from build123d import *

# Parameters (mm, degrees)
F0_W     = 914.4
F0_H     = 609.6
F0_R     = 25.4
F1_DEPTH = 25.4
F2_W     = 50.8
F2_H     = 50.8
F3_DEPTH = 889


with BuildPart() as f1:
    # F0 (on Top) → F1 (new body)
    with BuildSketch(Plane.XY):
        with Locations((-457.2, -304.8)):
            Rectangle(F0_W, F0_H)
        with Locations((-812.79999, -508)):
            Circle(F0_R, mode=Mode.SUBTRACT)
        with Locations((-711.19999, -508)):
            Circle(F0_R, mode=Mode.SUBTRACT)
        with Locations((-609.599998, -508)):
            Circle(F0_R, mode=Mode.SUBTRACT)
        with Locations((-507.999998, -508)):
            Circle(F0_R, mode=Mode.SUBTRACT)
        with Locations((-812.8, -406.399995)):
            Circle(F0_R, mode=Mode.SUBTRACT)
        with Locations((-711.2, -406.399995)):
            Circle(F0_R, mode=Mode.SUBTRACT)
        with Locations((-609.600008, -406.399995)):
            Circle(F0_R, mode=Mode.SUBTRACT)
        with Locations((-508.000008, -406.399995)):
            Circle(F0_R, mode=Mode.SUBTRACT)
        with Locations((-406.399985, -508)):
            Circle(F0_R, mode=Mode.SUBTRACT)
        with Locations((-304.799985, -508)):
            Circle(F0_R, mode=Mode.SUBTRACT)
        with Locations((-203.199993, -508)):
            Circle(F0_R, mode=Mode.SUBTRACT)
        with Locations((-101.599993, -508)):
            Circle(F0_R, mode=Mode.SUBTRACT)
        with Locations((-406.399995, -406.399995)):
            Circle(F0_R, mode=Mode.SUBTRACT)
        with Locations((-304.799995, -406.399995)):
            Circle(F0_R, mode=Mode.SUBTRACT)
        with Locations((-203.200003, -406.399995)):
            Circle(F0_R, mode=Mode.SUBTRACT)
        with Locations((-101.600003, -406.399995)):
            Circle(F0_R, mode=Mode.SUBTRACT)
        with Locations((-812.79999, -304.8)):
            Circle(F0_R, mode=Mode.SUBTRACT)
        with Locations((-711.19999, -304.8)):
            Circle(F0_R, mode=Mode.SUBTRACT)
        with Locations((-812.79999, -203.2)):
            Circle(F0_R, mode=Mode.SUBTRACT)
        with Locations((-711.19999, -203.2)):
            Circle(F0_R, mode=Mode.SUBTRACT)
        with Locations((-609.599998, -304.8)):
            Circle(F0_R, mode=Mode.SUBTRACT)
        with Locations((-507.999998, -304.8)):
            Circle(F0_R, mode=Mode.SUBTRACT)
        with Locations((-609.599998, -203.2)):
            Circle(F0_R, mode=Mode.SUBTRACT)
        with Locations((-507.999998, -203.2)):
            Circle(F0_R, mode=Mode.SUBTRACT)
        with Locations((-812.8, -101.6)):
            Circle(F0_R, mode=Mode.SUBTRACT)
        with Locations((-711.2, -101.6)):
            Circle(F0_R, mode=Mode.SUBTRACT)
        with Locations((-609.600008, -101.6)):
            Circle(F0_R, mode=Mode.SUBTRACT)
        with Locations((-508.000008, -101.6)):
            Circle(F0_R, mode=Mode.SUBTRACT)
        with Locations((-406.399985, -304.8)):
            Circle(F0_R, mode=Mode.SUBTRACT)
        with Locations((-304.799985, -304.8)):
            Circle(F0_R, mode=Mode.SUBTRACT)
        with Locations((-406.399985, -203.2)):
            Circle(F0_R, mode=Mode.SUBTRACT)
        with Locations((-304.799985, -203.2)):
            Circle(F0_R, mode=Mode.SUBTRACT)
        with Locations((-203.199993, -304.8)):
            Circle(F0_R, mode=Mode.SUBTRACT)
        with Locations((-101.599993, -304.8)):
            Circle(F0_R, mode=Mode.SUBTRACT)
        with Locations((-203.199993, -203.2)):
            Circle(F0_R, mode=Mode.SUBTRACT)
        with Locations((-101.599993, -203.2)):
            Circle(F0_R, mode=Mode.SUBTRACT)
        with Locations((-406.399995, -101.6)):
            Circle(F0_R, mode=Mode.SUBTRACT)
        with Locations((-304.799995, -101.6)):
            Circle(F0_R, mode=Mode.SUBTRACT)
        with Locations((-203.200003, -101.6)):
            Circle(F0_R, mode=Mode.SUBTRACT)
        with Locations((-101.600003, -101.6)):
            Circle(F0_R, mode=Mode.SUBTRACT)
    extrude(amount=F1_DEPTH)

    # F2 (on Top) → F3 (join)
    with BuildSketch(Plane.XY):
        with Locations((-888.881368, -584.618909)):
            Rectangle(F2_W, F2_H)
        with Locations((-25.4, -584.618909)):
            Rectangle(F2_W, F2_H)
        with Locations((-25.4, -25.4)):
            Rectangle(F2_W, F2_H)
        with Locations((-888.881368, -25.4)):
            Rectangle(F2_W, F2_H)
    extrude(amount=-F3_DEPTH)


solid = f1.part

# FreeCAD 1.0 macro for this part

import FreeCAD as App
import Part
import Sketcher

V = App.Vector
Q = App.Units.Quantity

doc = App.newDocument("Part")
body = doc.addObject("PartDesign::Body", "Body")

sketch1 = body.newObject("Sketcher::SketchObject", "Sketch")
sketch1.AttachmentSupport = (doc.getObject("XY_Plane"), [""])
sketch1.MapMode = "FlatFace"
sketch1.addGeometry([
    Part.LineSegment(V(-914.4, 0, 0), V(-914.4, -609.6, 0)),
    Part.LineSegment(V(-914.4, -609.6, 0), V(0, -609.6, 0)),
    Part.LineSegment(V(0, -609.6, 0), V(0, 0, 0)),
    Part.LineSegment(V(0, 0, 0), V(-914.4, 0, 0)),
    Part.Circle(V(-812.79999, -508, 0), V(0, 0, 1), 25.4),
    Part.Circle(V(-711.19999, -508, 0), V(0, 0, 1), 25.4),
    Part.Circle(V(-609.599998, -508, 0), V(0, 0, 1), 25.4),
    Part.Circle(V(-507.999998, -508, 0), V(0, 0, 1), 25.4),
    Part.Circle(V(-812.8, -406.399995, 0), V(0, 0, 1), 25.4),
    Part.Circle(V(-711.2, -406.399995, 0), V(0, 0, 1), 25.4),
    Part.Circle(V(-812.79999, -304.8, 0), V(0, 0, 1), 25.4),
    Part.Circle(V(-711.19999, -304.8, 0), V(0, 0, 1), 25.4),
    Part.Circle(V(-609.600008, -406.399995, 0), V(0, 0, 1), 25.4),
    Part.Circle(V(-508.000008, -406.399995, 0), V(0, 0, 1), 25.4),
    Part.Circle(V(-609.599998, -304.8, 0), V(0, 0, 1), 25.4),
    Part.Circle(V(-507.999998, -304.8, 0), V(0, 0, 1), 25.4),
    Part.Circle(V(-406.399985, -508, 0), V(0, 0, 1), 25.4),
    Part.Circle(V(-304.799985, -508, 0), V(0, 0, 1), 25.4),
    Part.Circle(V(-203.199993, -508, 0), V(0, 0, 1), 25.4),
    Part.Circle(V(-101.599993, -508, 0), V(0, 0, 1), 25.4),
    Part.Circle(V(-406.399995, -406.399995, 0), V(0, 0, 1), 25.4),
    Part.Circle(V(-304.799995, -406.399995, 0), V(0, 0, 1), 25.4),
    Part.Circle(V(-406.399985, -304.8, 0), V(0, 0, 1), 25.4),
    Part.Circle(V(-304.799985, -304.8, 0), V(0, 0, 1), 25.4),
    Part.Circle(V(-203.200003, -406.399995, 0), V(0, 0, 1), 25.4),
    Part.Circle(V(-101.600003, -406.399995, 0), V(0, 0, 1), 25.4),
    Part.Circle(V(-203.199993, -304.8, 0), V(0, 0, 1), 25.4),
    Part.Circle(V(-101.599993, -304.8, 0), V(0, 0, 1), 25.4),
    Part.Circle(V(-812.79999, -203.2, 0), V(0, 0, 1), 25.4),
    Part.Circle(V(-711.19999, -203.2, 0), V(0, 0, 1), 25.4),
    Part.Circle(V(-609.599998, -203.2, 0), V(0, 0, 1), 25.4),
    Part.Circle(V(-507.999998, -203.2, 0), V(0, 0, 1), 25.4),
    Part.Circle(V(-812.8, -101.6, 0), V(0, 0, 1), 25.4),
    Part.Circle(V(-711.2, -101.6, 0), V(0, 0, 1), 25.4),
    Part.Circle(V(-609.600008, -101.6, 0), V(0, 0, 1), 25.4),
    Part.Circle(V(-508.000008, -101.6, 0), V(0, 0, 1), 25.4),
    Part.Circle(V(-406.399985, -203.2, 0), V(0, 0, 1), 25.4),
    Part.Circle(V(-304.799985, -203.2, 0), V(0, 0, 1), 25.4),
    Part.Circle(V(-203.199993, -203.2, 0), V(0, 0, 1), 25.4),
    Part.Circle(V(-101.599993, -203.2, 0), V(0, 0, 1), 25.4),
    Part.Circle(V(-406.399995, -101.6, 0), V(0, 0, 1), 25.4),
    Part.Circle(V(-304.799995, -101.6, 0), V(0, 0, 1), 25.4),
    Part.Circle(V(-203.200003, -101.6, 0), V(0, 0, 1), 25.4),
    Part.Circle(V(-101.600003, -101.6, 0), V(0, 0, 1), 25.4),
], False)
sketch1.addConstraint([
    Sketcher.Constraint("Coincident", 0, 2, 1, 1),
    Sketcher.Constraint("Coincident", 1, 2, 2, 1),
    Sketcher.Constraint("Coincident", 2, 2, 3, 1),
    Sketcher.Constraint("Coincident", 3, 2, 0, 1),
    Sketcher.Constraint("Vertical", 0),
    Sketcher.Constraint("Horizontal", 1),
    Sketcher.Constraint("Vertical", 2),
    Sketcher.Constraint("Horizontal", 3),
    Sketcher.Constraint("Coincident", 2, 2, -1, 1),
    Sketcher.Constraint("Equal", 4, 5),
    Sketcher.Constraint("Equal", 5, 6),
    Sketcher.Constraint("Equal", 6, 7),
    Sketcher.Constraint("Equal", 7, 8),
    Sketcher.Constraint("Equal", 8, 9),
    Sketcher.Constraint("Equal", 9, 10),
    Sketcher.Constraint("Equal", 10, 11),
    Sketcher.Constraint("Equal", 11, 12),
    Sketcher.Constraint("Equal", 12, 13),
    Sketcher.Constraint("Equal", 13, 14),
    Sketcher.Constraint("Equal", 14, 15),
    Sketcher.Constraint("Equal", 15, 16),
    Sketcher.Constraint("Equal", 16, 17),
    Sketcher.Constraint("Equal", 17, 18),
    Sketcher.Constraint("Equal", 18, 19),
    Sketcher.Constraint("Equal", 19, 20),
    Sketcher.Constraint("Equal", 20, 21),
    Sketcher.Constraint("Equal", 21, 22),
    Sketcher.Constraint("Equal", 22, 23),
    Sketcher.Constraint("Equal", 23, 24),
    Sketcher.Constraint("Equal", 24, 25),
    Sketcher.Constraint("Equal", 25, 26),
    Sketcher.Constraint("Equal", 26, 27),
    Sketcher.Constraint("Equal", 27, 28),
    Sketcher.Constraint("Equal", 28, 29),
    Sketcher.Constraint("Equal", 29, 30),
    Sketcher.Constraint("Equal", 30, 31),
    Sketcher.Constraint("Equal", 31, 32),
    Sketcher.Constraint("Equal", 32, 33),
    Sketcher.Constraint("Equal", 33, 34),
    Sketcher.Constraint("Equal", 34, 35),
    Sketcher.Constraint("Equal", 35, 36),
    Sketcher.Constraint("Equal", 36, 37),
    Sketcher.Constraint("Equal", 37, 38),
    Sketcher.Constraint("Equal", 38, 39),
    Sketcher.Constraint("Equal", 39, 40),
    Sketcher.Constraint("Equal", 40, 41),
    Sketcher.Constraint("Equal", 41, 42),
    Sketcher.Constraint("Equal", 42, 43),
    Sketcher.Constraint("Horizontal", 4, 3, 5, 3),
    Sketcher.Constraint("Horizontal", 5, 3, 6, 3),
    Sketcher.Constraint("Horizontal", 6, 3, 7, 3),
    Sketcher.Constraint("Horizontal", 8, 3, 9, 3),
    Sketcher.Constraint("Horizontal", 10, 3, 11, 3),
    Sketcher.Constraint("Horizontal", 9, 3, 12, 3),
    Sketcher.Constraint("Horizontal", 12, 3, 13, 3),
    Sketcher.Constraint("Horizontal", 11, 3, 14, 3),
    Sketcher.Constraint("Horizontal", 14, 3, 15, 3),
    Sketcher.Constraint("Horizontal", 7, 3, 16, 3),
    Sketcher.Constraint("Horizontal", 16, 3, 17, 3),
    Sketcher.Constraint("Horizontal", 17, 3, 18, 3),
    Sketcher.Constraint("Horizontal", 18, 3, 19, 3),
    Sketcher.Constraint("Horizontal", 13, 3, 20, 3),
    Sketcher.Constraint("Horizontal", 20, 3, 21, 3),
    Sketcher.Constraint("Horizontal", 15, 3, 22, 3),
    Sketcher.Constraint("Horizontal", 22, 3, 23, 3),
    Sketcher.Constraint("Horizontal", 21, 3, 24, 3),
    Sketcher.Constraint("Horizontal", 24, 3, 25, 3),
    Sketcher.Constraint("Horizontal", 23, 3, 26, 3),
    Sketcher.Constraint("Horizontal", 26, 3, 27, 3),
    Sketcher.Constraint("Horizontal", 28, 3, 29, 3),
    Sketcher.Constraint("Horizontal", 29, 3, 30, 3),
    Sketcher.Constraint("Horizontal", 30, 3, 31, 3),
    Sketcher.Constraint("Horizontal", 32, 3, 33, 3),
    Sketcher.Constraint("Horizontal", 33, 3, 34, 3),
    Sketcher.Constraint("Horizontal", 34, 3, 35, 3),
    Sketcher.Constraint("Horizontal", 31, 3, 36, 3),
    Sketcher.Constraint("Horizontal", 36, 3, 37, 3),
    Sketcher.Constraint("Horizontal", 37, 3, 38, 3),
    Sketcher.Constraint("Horizontal", 38, 3, 39, 3),
    Sketcher.Constraint("Horizontal", 35, 3, 40, 3),
    Sketcher.Constraint("Horizontal", 40, 3, 41, 3),
    Sketcher.Constraint("Horizontal", 41, 3, 42, 3),
    Sketcher.Constraint("Horizontal", 42, 3, 43, 3),
    Sketcher.Constraint("Vertical", 4, 3, 10, 3),
    Sketcher.Constraint("Vertical", 5, 3, 11, 3),
    Sketcher.Constraint("Vertical", 6, 3, 14, 3),
    Sketcher.Constraint("Vertical", 7, 3, 15, 3),
    Sketcher.Constraint("Vertical", 16, 3, 22, 3),
    Sketcher.Constraint("Vertical", 17, 3, 23, 3),
    Sketcher.Constraint("Vertical", 18, 3, 26, 3),
    Sketcher.Constraint("Vertical", 19, 3, 27, 3),
    Sketcher.Constraint("Vertical", 10, 3, 28, 3),
    Sketcher.Constraint("Vertical", 11, 3, 29, 3),
    Sketcher.Constraint("Vertical", 14, 3, 30, 3),
    Sketcher.Constraint("Vertical", 15, 3, 31, 3),
    Sketcher.Constraint("Vertical", 8, 3, 32, 3),
    Sketcher.Constraint("Vertical", 9, 3, 33, 3),
    Sketcher.Constraint("Vertical", 12, 3, 34, 3),
    Sketcher.Constraint("Vertical", 13, 3, 35, 3),
    Sketcher.Constraint("Vertical", 22, 3, 36, 3),
    Sketcher.Constraint("Vertical", 23, 3, 37, 3),
    Sketcher.Constraint("Vertical", 26, 3, 38, 3),
    Sketcher.Constraint("Vertical", 27, 3, 39, 3),
    Sketcher.Constraint("Vertical", 20, 3, 40, 3),
    Sketcher.Constraint("Vertical", 21, 3, 41, 3),
    Sketcher.Constraint("Vertical", 24, 3, 42, 3),
    Sketcher.Constraint("Vertical", 25, 3, 43, 3),
    Sketcher.Constraint("Diameter", 4, Q("2 in")),
    Sketcher.Constraint("DistanceX", 1, 1, 1, 2, Q("36 in")),
    Sketcher.Constraint("DistanceY", 0, 2, 0, 1, Q("24 in")),
    Sketcher.Constraint("DistanceY", 4, 3, -1, 1, Q("20 in")),
    Sketcher.Constraint("DistanceX", 6, 3, -1, 1, Q("23.9999999 in")),
    Sketcher.Constraint("DistanceX", 7, 3, -1, 1, Q("19.9999999 in")),
    Sketcher.Constraint("DistanceX", 8, 3, -1, 1, Q("32 in")),
    Sketcher.Constraint("DistanceY", 8, 3, -1, 1, Q("15.9999998 in")),
    Sketcher.Constraint("DistanceX", 9, 3, -1, 1, Q("28 in")),
    Sketcher.Constraint("DistanceY", 10, 3, -1, 1, Q("12 in")),
    Sketcher.Constraint("DistanceX", 20, 3, -1, 1, Q("15.9999998 in")),
    Sketcher.Constraint("DistanceX", 21, 3, -1, 1, Q("11.9999998 in")),
    Sketcher.Constraint("DistanceX", 24, 3, -1, 1, Q("8.0000001 in")),
    Sketcher.Constraint("DistanceX", 25, 3, -1, 1, Q("4.0000001 in")),
    Sketcher.Constraint("DistanceY", 28, 3, -1, 1, Q("8 in")),
    Sketcher.Constraint("DistanceY", 32, 3, -1, 1, Q("4 in")),
    Sketcher.Constraint("DistanceX", 4, 3, 5, 3, Q("4 in")),
    Sketcher.Constraint("DistanceX", 12, 3, 13, 3, Q("4 in")),
    Sketcher.Constraint("DistanceX", 16, 3, 17, 3, Q("4 in")),
    Sketcher.Constraint("DistanceX", 7, 3, 18, 3, Q("12.0000002 in")),
    Sketcher.Constraint("DistanceX", 18, 3, 19, 3, Q("4 in")),
    Sketcher.Constraint("DistanceX", 4, 3, -1, 1, 812.79999),
    Sketcher.Constraint("DistanceX", 12, 3, -1, 1, 609.600008),
    Sketcher.Constraint("DistanceX", 17, 3, 18, 3, 101.599992),
])
pad1 = body.newObject("PartDesign::Pad", "Pad")
pad1.Profile = sketch1
pad1.Length = Q("1 in")

sketch2 = body.newObject("Sketcher::SketchObject", "Sketch001")
sketch2.AttachmentSupport = (doc.getObject("XY_Plane"), [""])
sketch2.MapMode = "FlatFace"
sketch2.addGeometry([
    Part.LineSegment(V(-914.281368, -559.218909, 0), V(-914.281368, -610.018909, 0)),
    Part.LineSegment(V(-914.281368, -610.018909, 0), V(-863.481368, -610.018909, 0)),
    Part.LineSegment(V(-863.481368, -610.018909, 0), V(-863.481368, -559.218909, 0)),
    Part.LineSegment(V(-863.481368, -559.218909, 0), V(-914.281368, -559.218909, 0)),
    Part.LineSegment(V(-50.8, -559.218909, 0), V(-50.8, -610.018909, 0)),
    Part.LineSegment(V(-50.8, -610.018909, 0), V(0, -610.018909, 0)),
    Part.LineSegment(V(0, -610.018909, 0), V(0, -559.218909, 0)),
    Part.LineSegment(V(0, -559.218909, 0), V(-50.8, -559.218909, 0)),
    Part.LineSegment(V(-50.8, 0, 0), V(-50.8, -50.8, 0)),
    Part.LineSegment(V(-50.8, -50.8, 0), V(0, -50.8, 0)),
    Part.LineSegment(V(0, -50.8, 0), V(0, 0, 0)),
    Part.LineSegment(V(0, 0, 0), V(-50.8, 0, 0)),
    Part.LineSegment(V(-914.281368, 0, 0), V(-914.281368, -50.8, 0)),
    Part.LineSegment(V(-914.281368, -50.8, 0), V(-863.481368, -50.8, 0)),
    Part.LineSegment(V(-863.481368, -50.8, 0), V(-863.481368, 0, 0)),
    Part.LineSegment(V(-863.481368, 0, 0), V(-914.281368, 0, 0)),
], False)
sketch2.addConstraint([
    Sketcher.Constraint("Coincident", 0, 2, 1, 1),
    Sketcher.Constraint("Coincident", 1, 2, 2, 1),
    Sketcher.Constraint("Coincident", 2, 2, 3, 1),
    Sketcher.Constraint("Coincident", 3, 2, 0, 1),
    Sketcher.Constraint("Coincident", 4, 2, 5, 1),
    Sketcher.Constraint("Coincident", 5, 2, 6, 1),
    Sketcher.Constraint("Coincident", 6, 2, 7, 1),
    Sketcher.Constraint("Coincident", 7, 2, 4, 1),
    Sketcher.Constraint("Coincident", 8, 2, 9, 1),
    Sketcher.Constraint("Coincident", 9, 2, 10, 1),
    Sketcher.Constraint("Coincident", 10, 2, 11, 1),
    Sketcher.Constraint("Coincident", 11, 2, 8, 1),
    Sketcher.Constraint("Coincident", 12, 2, 13, 1),
    Sketcher.Constraint("Coincident", 13, 2, 14, 1),
    Sketcher.Constraint("Coincident", 14, 2, 15, 1),
    Sketcher.Constraint("Coincident", 15, 2, 12, 1),
    Sketcher.Constraint("Vertical", 0),
    Sketcher.Constraint("Horizontal", 1),
    Sketcher.Constraint("Vertical", 2),
    Sketcher.Constraint("Horizontal", 3),
    Sketcher.Constraint("Vertical", 4),
    Sketcher.Constraint("Horizontal", 5),
    Sketcher.Constraint("Vertical", 6),
    Sketcher.Constraint("Horizontal", 7),
    Sketcher.Constraint("Vertical", 8),
    Sketcher.Constraint("Horizontal", 9),
    Sketcher.Constraint("Vertical", 10),
    Sketcher.Constraint("Horizontal", 11),
    Sketcher.Constraint("Vertical", 12),
    Sketcher.Constraint("Horizontal", 13),
    Sketcher.Constraint("Vertical", 14),
    Sketcher.Constraint("Horizontal", 15),
    Sketcher.Constraint("Coincident", 10, 2, -1, 1),
    Sketcher.Constraint("PointOnObject", 5, 2, -2),
    Sketcher.Constraint("PointOnObject", 14, 2, -1),
    Sketcher.Constraint("Horizontal", 1, 2, 4, 2),
    Sketcher.Constraint("Horizontal", 3, 2, 6, 2),
    Sketcher.Constraint("Horizontal", 9, 2, 12, 2),
    Sketcher.Constraint("Vertical", 7, 2, 8, 2),
    Sketcher.Constraint("Vertical", 3, 2, 12, 2),
    Sketcher.Constraint("Vertical", 2, 2, 13, 2),
    Sketcher.Constraint("Equal", 3, 5),
    Sketcher.Constraint("Equal", 15, 0),
    Sketcher.Constraint("Equal", 6, 8),
    Sketcher.Constraint("DistanceX", 1, 1, 1, 2, Q("2 in")),
    Sketcher.Constraint("DistanceX", 0, 2, -1, 1, 914.281368),
    Sketcher.Constraint("DistanceY", 0, 2, -1, 1, 610.018909),
])
pad2 = body.newObject("PartDesign::Pad", "Pad001")
pad2.Profile = sketch2
pad2.Length = Q("35 in")
pad2.Reversed = True

doc.recompute()
